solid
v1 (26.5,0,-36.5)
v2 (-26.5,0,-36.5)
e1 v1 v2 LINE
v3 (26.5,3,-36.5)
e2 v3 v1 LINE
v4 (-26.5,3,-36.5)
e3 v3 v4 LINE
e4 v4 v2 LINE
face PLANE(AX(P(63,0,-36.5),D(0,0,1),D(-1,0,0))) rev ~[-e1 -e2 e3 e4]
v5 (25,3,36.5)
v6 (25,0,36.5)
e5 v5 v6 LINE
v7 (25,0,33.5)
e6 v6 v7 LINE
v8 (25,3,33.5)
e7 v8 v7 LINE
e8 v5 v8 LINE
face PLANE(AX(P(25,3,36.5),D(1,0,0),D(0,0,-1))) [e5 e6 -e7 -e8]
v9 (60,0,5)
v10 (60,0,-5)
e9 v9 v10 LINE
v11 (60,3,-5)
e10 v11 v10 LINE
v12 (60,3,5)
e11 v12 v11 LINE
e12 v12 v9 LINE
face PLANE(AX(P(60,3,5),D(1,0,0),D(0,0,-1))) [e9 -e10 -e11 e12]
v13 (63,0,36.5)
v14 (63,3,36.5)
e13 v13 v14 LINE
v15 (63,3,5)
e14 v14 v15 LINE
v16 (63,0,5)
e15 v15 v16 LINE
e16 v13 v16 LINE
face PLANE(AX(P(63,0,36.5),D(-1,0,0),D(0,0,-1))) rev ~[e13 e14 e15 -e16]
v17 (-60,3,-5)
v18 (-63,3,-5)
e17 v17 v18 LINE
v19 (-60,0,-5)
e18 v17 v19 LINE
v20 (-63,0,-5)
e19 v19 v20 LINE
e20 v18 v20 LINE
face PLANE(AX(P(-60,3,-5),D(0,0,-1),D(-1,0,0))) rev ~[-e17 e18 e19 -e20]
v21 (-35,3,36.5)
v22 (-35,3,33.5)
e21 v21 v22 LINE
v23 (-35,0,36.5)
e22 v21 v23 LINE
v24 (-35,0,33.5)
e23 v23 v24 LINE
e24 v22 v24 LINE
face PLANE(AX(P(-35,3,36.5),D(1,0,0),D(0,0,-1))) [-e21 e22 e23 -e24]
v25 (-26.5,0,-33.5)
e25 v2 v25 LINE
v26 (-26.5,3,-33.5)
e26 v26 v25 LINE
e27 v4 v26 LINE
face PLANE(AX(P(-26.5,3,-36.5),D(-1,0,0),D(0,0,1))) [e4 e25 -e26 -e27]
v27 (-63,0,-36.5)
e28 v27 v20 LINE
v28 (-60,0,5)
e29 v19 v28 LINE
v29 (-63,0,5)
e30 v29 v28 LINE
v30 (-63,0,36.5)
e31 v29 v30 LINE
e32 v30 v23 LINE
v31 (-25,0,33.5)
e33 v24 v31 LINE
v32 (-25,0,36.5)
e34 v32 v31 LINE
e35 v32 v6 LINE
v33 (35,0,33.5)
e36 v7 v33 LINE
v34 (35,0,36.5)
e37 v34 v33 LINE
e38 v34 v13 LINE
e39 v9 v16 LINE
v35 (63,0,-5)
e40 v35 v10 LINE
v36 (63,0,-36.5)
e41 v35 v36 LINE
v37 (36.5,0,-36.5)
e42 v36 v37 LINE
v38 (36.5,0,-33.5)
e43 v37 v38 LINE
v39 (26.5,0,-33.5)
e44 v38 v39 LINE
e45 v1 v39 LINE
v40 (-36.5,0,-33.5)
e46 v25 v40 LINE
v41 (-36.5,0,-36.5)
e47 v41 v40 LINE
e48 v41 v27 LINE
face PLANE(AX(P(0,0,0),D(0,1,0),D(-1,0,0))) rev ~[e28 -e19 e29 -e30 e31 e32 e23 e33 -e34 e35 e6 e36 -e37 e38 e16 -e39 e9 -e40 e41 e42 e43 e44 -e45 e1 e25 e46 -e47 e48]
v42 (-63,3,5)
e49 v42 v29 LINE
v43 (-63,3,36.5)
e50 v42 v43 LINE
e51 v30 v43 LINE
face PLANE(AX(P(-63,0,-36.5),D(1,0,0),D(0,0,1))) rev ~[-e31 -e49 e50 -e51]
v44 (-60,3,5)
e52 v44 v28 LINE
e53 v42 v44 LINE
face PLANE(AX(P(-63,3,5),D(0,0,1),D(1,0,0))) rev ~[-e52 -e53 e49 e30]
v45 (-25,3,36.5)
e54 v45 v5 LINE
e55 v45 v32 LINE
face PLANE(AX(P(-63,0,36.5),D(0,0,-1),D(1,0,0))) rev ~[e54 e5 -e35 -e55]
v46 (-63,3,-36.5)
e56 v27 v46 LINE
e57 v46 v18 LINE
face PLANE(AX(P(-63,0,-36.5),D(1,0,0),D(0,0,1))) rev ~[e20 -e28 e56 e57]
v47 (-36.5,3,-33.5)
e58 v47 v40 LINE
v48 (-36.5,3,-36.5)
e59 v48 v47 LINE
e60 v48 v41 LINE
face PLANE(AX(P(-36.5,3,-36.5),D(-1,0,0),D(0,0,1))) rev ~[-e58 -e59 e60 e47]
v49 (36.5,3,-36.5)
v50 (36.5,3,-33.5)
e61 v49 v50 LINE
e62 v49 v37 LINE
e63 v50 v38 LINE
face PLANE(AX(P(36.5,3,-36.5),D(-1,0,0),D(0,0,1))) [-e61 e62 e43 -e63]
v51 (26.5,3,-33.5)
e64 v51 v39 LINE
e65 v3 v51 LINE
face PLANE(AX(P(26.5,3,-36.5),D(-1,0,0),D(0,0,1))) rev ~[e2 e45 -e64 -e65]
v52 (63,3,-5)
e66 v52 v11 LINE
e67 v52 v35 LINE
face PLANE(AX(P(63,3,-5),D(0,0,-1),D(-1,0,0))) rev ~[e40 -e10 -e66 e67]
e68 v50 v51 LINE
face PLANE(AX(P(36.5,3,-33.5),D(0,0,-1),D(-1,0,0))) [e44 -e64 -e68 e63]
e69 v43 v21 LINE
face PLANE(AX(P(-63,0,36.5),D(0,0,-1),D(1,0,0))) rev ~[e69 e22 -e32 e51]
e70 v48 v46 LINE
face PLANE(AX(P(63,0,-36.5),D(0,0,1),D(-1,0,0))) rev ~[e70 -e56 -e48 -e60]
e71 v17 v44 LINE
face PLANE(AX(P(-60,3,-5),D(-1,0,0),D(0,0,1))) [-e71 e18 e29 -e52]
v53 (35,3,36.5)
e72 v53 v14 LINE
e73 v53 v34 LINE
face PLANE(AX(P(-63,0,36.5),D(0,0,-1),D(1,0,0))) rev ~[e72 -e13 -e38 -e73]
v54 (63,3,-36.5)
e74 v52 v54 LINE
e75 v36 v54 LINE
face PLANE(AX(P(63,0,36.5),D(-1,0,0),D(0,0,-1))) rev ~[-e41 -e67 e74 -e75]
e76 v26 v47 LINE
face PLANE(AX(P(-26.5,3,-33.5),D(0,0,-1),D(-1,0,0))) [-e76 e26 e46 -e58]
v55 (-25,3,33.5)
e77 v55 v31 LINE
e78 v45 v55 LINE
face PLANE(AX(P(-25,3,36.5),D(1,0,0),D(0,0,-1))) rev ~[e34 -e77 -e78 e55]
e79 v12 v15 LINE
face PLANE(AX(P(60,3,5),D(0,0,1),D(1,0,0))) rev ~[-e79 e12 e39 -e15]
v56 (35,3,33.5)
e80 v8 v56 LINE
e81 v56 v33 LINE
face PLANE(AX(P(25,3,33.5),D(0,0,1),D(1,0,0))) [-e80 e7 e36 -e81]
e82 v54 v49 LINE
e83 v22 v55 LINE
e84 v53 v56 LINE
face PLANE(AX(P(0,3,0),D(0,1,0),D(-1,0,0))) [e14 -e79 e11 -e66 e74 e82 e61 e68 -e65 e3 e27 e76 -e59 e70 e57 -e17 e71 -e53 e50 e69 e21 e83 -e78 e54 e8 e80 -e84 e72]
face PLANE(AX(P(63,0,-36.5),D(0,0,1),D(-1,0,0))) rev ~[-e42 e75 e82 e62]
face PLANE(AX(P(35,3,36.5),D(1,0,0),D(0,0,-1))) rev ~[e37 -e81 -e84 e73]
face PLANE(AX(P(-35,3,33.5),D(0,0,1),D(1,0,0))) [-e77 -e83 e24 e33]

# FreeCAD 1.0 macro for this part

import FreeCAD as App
import Part
import Sketcher

doc = App.newDocument("Part")
params = doc.addObject("Spreadsheet::Sheet", "Params")
for row, (alias, value) in enumerate([
    ("sketch1_width", "126 mm"),
    ("sketch1_height", "73 mm"),
    ("pad1_length", "3 mm"),
    ("sketch2_width", "10 mm"),
    ("sketch2_width2", "3 mm"),
], start=1):
    params.set(f"A{row}", alias)
    params.set(f"B{row}", "=" + value)
    params.setAlias(f"B{row}", alias)

body = doc.addObject("PartDesign::Body", "Body")

sketch1 = body.newObject("Sketcher::SketchObject", "Sketch")
sketch1.AttachmentSupport = (doc.getObject("XZ_Plane"), [""])
sketch1.MapMode = "FlatFace"
sketch1.addGeometry([
    Part.LineSegment(App.Vector(63, 36, 0), App.Vector(63, -36, 0)),
    Part.LineSegment(App.Vector(63, -36, 0), App.Vector(-63, -36, 0)),
    Part.LineSegment(App.Vector(-63, -36, 0), App.Vector(-63, 36, 0)),
    Part.LineSegment(App.Vector(-63, 36, 0), App.Vector(63, 36, 0)),
], False)
sketch1.addConstraint([
    Sketcher.Constraint("Coincident", 0, 2, 1, 1),
    Sketcher.Constraint("Coincident", 1, 2, 2, 1),
    Sketcher.Constraint("Coincident", 2, 2, 3, 1),
    Sketcher.Constraint("Coincident", 3, 2, 0, 1),
    Sketcher.Constraint("Vertical", 0),
    Sketcher.Constraint("Horizontal", 1),
    Sketcher.Constraint("Vertical", 2),
    Sketcher.Constraint("Horizontal", 3),
    Sketcher.Constraint("Symmetric", 0, 2, 2, 2, -1, 1),
    Sketcher.Constraint("DistanceX", 1, 2, 1, 1, 126.0),
    Sketcher.Constraint("DistanceY", 0, 2, 0, 1, 73.0),
])
sketch1.setExpression("Constraints[9]", "Params.sketch1_width")
sketch1.setExpression("Constraints[10]", "Params.sketch1_height")
pad1 = body.newObject("PartDesign::Pad", "Pad")
pad1.Profile = sketch1
pad1.setExpression("Length", "Params.pad1_length")
pad1.Reversed = True

sketch2 = body.newObject("Sketcher::SketchObject", "Sketch001")
sketch2.AttachmentSupport = (doc.getObject("XZ_Plane"), [""])
sketch2.MapMode = "FlatFace"
sketch2.AttachmentOffset = App.Placement(App.Vector(0, 0, -3), App.Rotation())
sketch2.addGeometry([
    Part.LineSegment(App.Vector(-25, 36.5, 0), App.Vector(-25, 33.5, 0)),
    Part.LineSegment(App.Vector(-25, 33.5, 0), App.Vector(-35, 33.5, 0)),
    Part.LineSegment(App.Vector(-35, 33.5, 0), App.Vector(-35, 36.5, 0)),
    Part.LineSegment(App.Vector(-35, 36.5, 0), App.Vector(-25, 36.5, 0)),
    Part.LineSegment(App.Vector(35, 33.5, 0), App.Vector(25, 33.5, 0)),
    Part.LineSegment(App.Vector(25, 33.5, 0), App.Vector(25, 36.5, 0)),
    Part.LineSegment(App.Vector(25, 36.5, 0), App.Vector(35, 36.5, 0)),
    Part.LineSegment(App.Vector(35, 36.5, 0), App.Vector(35, 33.5, 0)),
    Part.LineSegment(App.Vector(-63, 5, 0), App.Vector(-60, 5, 0)),
    Part.LineSegment(App.Vector(-60, 5, 0), App.Vector(-60, -5, 0)),
    Part.LineSegment(App.Vector(-60, -5, 0), App.Vector(-63, -5, 0)),
    Part.LineSegment(App.Vector(-63, -5, 0), App.Vector(-63, 5, 0)),
    Part.LineSegment(App.Vector(60, -5, 0), App.Vector(60, 5, 0)),
    Part.LineSegment(App.Vector(60, 5, 0), App.Vector(63, 5, 0)),
    Part.LineSegment(App.Vector(63, 5, 0), App.Vector(63, -5, 0)),
    Part.LineSegment(App.Vector(63, -5, 0), App.Vector(60, -5, 0)),
    Part.LineSegment(App.Vector(-36.5, -36.5, 0), App.Vector(-36.5, -33.5, 0)),
    Part.LineSegment(App.Vector(-36.5, -33.5, 0), App.Vector(-26.5, -33.5, 0)),
    Part.LineSegment(App.Vector(-26.5, -33.5, 0), App.Vector(-26.5, -36.5, 0)),
    Part.LineSegment(App.Vector(-26.5, -36.5, 0), App.Vector(-36.5, -36.5, 0)),
    Part.LineSegment(App.Vector(26.5, -33.5, 0), App.Vector(36.5, -33.5, 0)),
    Part.LineSegment(App.Vector(36.5, -33.5, 0), App.Vector(36.5, -36.5, 0)),
    Part.LineSegment(App.Vector(36.5, -36.5, 0), App.Vector(26.5, -36.5, 0)),
    Part.LineSegment(App.Vector(26.5, -36.5, 0), App.Vector(26.5, -33.5, 0)),
], False)
sketch2.addConstraint([
    Sketcher.Constraint("Coincident", 0, 2, 1, 1),
    Sketcher.Constraint("Coincident", 1, 2, 2, 1),
    Sketcher.Constraint("Coincident", 2, 2, 3, 1),
    Sketcher.Constraint("Coincident", 3, 2, 0, 1),
    Sketcher.Constraint("Coincident", 4, 2, 5, 1),
    Sketcher.Constraint("Coincident", 5, 2, 6, 1),
    Sketcher.Constraint("Coincident", 6, 2, 7, 1),
    Sketcher.Constraint("Coincident", 7, 2, 4, 1),
    Sketcher.Constraint("Coincident", 8, 2, 9, 1),
    Sketcher.Constraint("Coincident", 9, 2, 10, 1),
    Sketcher.Constraint("Coincident", 10, 2, 11, 1),
    Sketcher.Constraint("Coincident", 11, 2, 8, 1),
    Sketcher.Constraint("Coincident", 12, 2, 13, 1),
    Sketcher.Constraint("Coincident", 13, 2, 14, 1),
    Sketcher.Constraint("Coincident", 14, 2, 15, 1),
    Sketcher.Constraint("Coincident", 15, 2, 12, 1),
    Sketcher.Constraint("Coincident", 16, 2, 17, 1),
    Sketcher.Constraint("Coincident", 17, 2, 18, 1),
    Sketcher.Constraint("Coincident", 18, 2, 19, 1),
    Sketcher.Constraint("Coincident", 19, 2, 16, 1),
    Sketcher.Constraint("Coincident", 20, 2, 21, 1),
    Sketcher.Constraint("Coincident", 21, 2, 22, 1),
    Sketcher.Constraint("Coincident", 22, 2, 23, 1),
    Sketcher.Constraint("Coincident", 23, 2, 20, 1),
    Sketcher.Constraint("Vertical", 0),
    Sketcher.Constraint("Horizontal", 1),
    Sketcher.Constraint("Vertical", 2),
    Sketcher.Constraint("Horizontal", 3),
    Sketcher.Constraint("Horizontal", 4),
    Sketcher.Constraint("Vertical", 5),
    Sketcher.Constraint("Horizontal", 6),
    Sketcher.Constraint("Vertical", 7),
    Sketcher.Constraint("Horizontal", 8),
    Sketcher.Constraint("Vertical", 9),
    Sketcher.Constraint("Horizontal", 10),
    Sketcher.Constraint("Vertical", 11),
    Sketcher.Constraint("Vertical", 12),
    Sketcher.Constraint("Horizontal", 13),
    Sketcher.Constraint("Vertical", 14),
    Sketcher.Constraint("Horizontal", 15),
    Sketcher.Constraint("Vertical", 16),
    Sketcher.Constraint("Horizontal", 17),
    Sketcher.Constraint("Vertical", 18),
    Sketcher.Constraint("Horizontal", 19),
    Sketcher.Constraint("Horizontal", 20),
    Sketcher.Constraint("Vertical", 21),
    Sketcher.Constraint("Horizontal", 22),
    Sketcher.Constraint("Vertical", 23),
    Sketcher.Constraint("Symmetric", 9, 2, 12, 2, -1, 1),
    Sketcher.Constraint("Symmetric", 11, 2, 14, 2, -1, 1),
    Sketcher.Constraint("Symmetric", 0, 2, 4, 2, -2),
    Sketcher.Constraint("Symmetric", 2, 2, 6, 2, -2),
    Sketcher.Constraint("Symmetric", 16, 2, 20, 2, -2),
    Sketcher.Constraint("Symmetric", 18, 2, 22, 2, -2),
    Sketcher.Constraint("Horizontal", 11, 2, 12, 2),
    Sketcher.Constraint("Equal", 6, 17),
    Sketcher.Constraint("Equal", 15, 0),
    Sketcher.Constraint("Equal", 22, 9),
    Sketcher.Constraint("Equal", 7, 16),
    Sketcher.Constraint("DistanceX", 1, 2, 1, 1, 10.0),
    Sketcher.Constraint("DistanceX", 8, 1, 8, 2, 3.0),
    Sketcher.Constraint("DistanceX", 0, 2, -1, 1, 25.0),
    Sketcher.Constraint("DistanceX", 8, 2, -1, 1, 60.0),
    Sketcher.Constraint("DistanceY", 16, 2, 1, 2, 67.0),
    Sketcher.Constraint("DistanceX", 17, 2, 20, 2, 63.0),
    Sketcher.Constraint("DistanceY", -1, 1, 0, 2, 33.5),
])
sketch2.setExpression("Constraints[59]", "Params.sketch2_width")
sketch2.setExpression("Constraints[60]", "Params.sketch2_width2")
pocket1 = body.newObject("PartDesign::Pocket", "Pocket")
pocket1.Profile = sketch2
pocket1.Type = "ThroughAll"
pocket1.Reversed = True

doc.recompute()
